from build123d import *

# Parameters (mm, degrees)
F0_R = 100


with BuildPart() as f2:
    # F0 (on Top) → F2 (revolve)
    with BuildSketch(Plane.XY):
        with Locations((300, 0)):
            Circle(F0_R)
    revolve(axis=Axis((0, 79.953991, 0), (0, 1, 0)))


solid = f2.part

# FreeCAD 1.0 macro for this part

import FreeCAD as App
import Part
import Sketcher
Q = App.Units.Quantity

doc = App.newDocument("Part")
body = doc.addObject("PartDesign::Body", "Body")

sketch1 = body.newObject("Sketcher::SketchObject", "Sketch")
sketch1.AttachmentSupport = (doc.getObject("XY_Plane"), [""])
sketch1.MapMode = "FlatFace"
sketch1.addGeometry(Part.Circle(App.Vector(300, 0, 0), App.Vector(0, 0, 1), 100), False)
sketch1.addConstraint([
    Sketcher.Constraint("PointOnObject", 0, 3, -1),
    Sketcher.Constraint("Diameter", 0, Q("200 mm")),
    Sketcher.Constraint("DistanceX", -1, 1, 0, 3, Q("300 mm")),
])
revolution = body.newObject("PartDesign::Revolution", "Revolution")
revolution.Profile = sketch1
revolution.ReferenceAxis = (sketch1, ["V_Axis"])
revolution.Angle = 360

doc.recompute()
